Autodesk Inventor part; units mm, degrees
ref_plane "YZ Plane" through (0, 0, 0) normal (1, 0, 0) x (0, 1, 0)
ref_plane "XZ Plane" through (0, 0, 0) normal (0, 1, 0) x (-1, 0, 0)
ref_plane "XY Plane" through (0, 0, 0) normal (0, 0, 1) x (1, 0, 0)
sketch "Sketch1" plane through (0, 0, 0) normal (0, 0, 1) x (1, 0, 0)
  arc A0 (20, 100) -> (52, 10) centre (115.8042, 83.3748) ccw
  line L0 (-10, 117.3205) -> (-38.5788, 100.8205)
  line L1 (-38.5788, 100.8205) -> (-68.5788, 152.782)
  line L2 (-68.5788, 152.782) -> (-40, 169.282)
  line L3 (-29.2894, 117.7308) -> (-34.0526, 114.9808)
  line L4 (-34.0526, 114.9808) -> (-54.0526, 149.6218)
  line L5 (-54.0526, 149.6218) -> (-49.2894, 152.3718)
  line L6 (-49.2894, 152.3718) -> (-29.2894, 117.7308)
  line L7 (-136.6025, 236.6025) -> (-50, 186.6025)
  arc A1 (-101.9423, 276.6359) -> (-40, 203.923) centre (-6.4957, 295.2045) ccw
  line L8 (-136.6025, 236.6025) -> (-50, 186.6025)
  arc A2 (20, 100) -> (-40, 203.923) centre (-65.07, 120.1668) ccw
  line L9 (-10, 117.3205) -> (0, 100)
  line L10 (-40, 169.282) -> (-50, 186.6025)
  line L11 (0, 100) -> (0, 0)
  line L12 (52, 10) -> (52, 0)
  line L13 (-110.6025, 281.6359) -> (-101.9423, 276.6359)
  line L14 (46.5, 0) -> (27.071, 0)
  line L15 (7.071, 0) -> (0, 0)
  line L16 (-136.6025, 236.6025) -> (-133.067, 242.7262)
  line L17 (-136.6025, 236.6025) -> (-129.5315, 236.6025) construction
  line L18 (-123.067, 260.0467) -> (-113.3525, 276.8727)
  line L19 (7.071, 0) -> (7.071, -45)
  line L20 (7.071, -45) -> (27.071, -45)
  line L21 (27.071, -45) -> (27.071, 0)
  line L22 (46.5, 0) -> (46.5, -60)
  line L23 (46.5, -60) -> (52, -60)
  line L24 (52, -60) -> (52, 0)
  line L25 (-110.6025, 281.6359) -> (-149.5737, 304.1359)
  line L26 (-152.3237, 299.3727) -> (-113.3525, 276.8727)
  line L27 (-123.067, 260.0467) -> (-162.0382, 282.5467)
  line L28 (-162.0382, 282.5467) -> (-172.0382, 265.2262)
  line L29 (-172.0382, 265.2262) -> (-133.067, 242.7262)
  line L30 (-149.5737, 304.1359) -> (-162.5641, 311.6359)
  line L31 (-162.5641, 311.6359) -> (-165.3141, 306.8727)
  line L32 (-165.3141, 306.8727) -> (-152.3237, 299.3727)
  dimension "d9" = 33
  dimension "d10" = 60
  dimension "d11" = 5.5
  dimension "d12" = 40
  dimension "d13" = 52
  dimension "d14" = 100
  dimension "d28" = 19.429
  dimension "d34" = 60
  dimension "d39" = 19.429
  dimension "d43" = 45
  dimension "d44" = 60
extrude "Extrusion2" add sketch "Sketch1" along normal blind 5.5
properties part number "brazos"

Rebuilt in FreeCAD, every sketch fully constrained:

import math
import FreeCAD as App
import Part
import Sketcher
from FreeCAD import Vector
Q = App.Units.Quantity


def add_polygon(sketch, points):
    """Adds a closed chain of lines whose ends are joined by coincident constraints."""
    first, n = sketch.GeometryCount, len(points)
    for a, b in zip(points, points[1:] + points[:1]):
        sketch.addGeometry(Part.LineSegment(App.Vector(*a, 0), App.Vector(*b, 0)), False)
    for i in range(n):
        sketch.addConstraint(Sketcher.Constraint("Coincident", first + i, 2, first + (i + 1) % n, 1))

doc = App.newDocument("Part")
body = doc.addObject("PartDesign::Body", "Body")

sketch1 = body.newObject("Sketcher::SketchObject", "Sketch")
sketch1.AttachmentSupport = (doc.getObject("XY_Plane"), [""])
sketch1.MapMode = "FlatFace"
sketch1.addGeometry(Part.ArcOfCircle(Part.Circle(Vector(116, 83, 0), Vector(0, 0, 1), 97), math.radians(170), math.radians(229)), False)
sketch1.addGeometry(Part.ArcOfCircle(Part.Circle(Vector(-65, 120, 0), Vector(0, 0, 1), 87), math.radians(-13), math.radians(73)), False)
sketch1.addGeometry(Part.ArcOfCircle(Part.Circle(Vector(-6, 295, 0), Vector(0, 0, 1), 97), math.radians(-169), math.radians(-110)), False)
sketch1.addGeometry(Part.LineSegment(Vector(-102, 277, 0), Vector(-111, 282, 0)), False)
sketch1.addGeometry(Part.LineSegment(Vector(-111, 282, 0), Vector(-163, 312, 0)), False)
sketch1.addGeometry(Part.LineSegment(Vector(-163, 312, 0), Vector(-165, 307, 0)), False)
sketch1.addGeometry(Part.LineSegment(Vector(-165, 307, 0), Vector(-113, 277, 0)), False)
sketch1.addGeometry(Part.LineSegment(Vector(-113, 277, 0), Vector(-123, 260, 0)), False)
sketch1.addGeometry(Part.LineSegment(Vector(-123, 260, 0), Vector(-162, 283, 0)), False)
sketch1.addGeometry(Part.LineSegment(Vector(-162, 283, 0), Vector(-172, 265, 0)), False)
sketch1.addGeometry(Part.LineSegment(Vector(-172, 265, 0), Vector(-133, 243, 0)), False)
sketch1.addGeometry(Part.LineSegment(Vector(-133, 243, 0), Vector(-137, 237, 0)), False)
sketch1.addGeometry(Part.LineSegment(Vector(-137, 237, 0), Vector(-50, 187, 0)), False)
sketch1.addGeometry(Part.LineSegment(Vector(-50, 187, 0), Vector(-40, 169, 0)), False)
sketch1.addGeometry(Part.LineSegment(Vector(-40, 169, 0), Vector(-69, 153, 0)), False)
sketch1.addGeometry(Part.LineSegment(Vector(-69, 153, 0), Vector(-39, 101, 0)), False)
sketch1.addGeometry(Part.LineSegment(Vector(-39, 101, 0), Vector(-10, 117, 0)), False)
sketch1.addGeometry(Part.LineSegment(Vector(-10, 117, 0), Vector(0, 100, 0)), False)
sketch1.addGeometry(Part.LineSegment(Vector(0, 100, 0), Vector(0, 0, 0)), False)
sketch1.addGeometry(Part.LineSegment(Vector(0, 0, 0), Vector(7, 0, 0)), False)
sketch1.addGeometry(Part.LineSegment(Vector(7, 0, 0), Vector(7, -45, 0)), False)
sketch1.addGeometry(Part.LineSegment(Vector(7, -45, 0), Vector(27, -45, 0)), False)
sketch1.addGeometry(Part.LineSegment(Vector(27, -45, 0), Vector(27, 0, 0)), False)
sketch1.addGeometry(Part.LineSegment(Vector(27, 0, 0), Vector(46, 0, 0)), False)
sketch1.addGeometry(Part.LineSegment(Vector(46, 0, 0), Vector(46, -60, 0)), False)
sketch1.addGeometry(Part.LineSegment(Vector(46, -60, 0), Vector(52, -60, 0)), False)
sketch1.addGeometry(Part.LineSegment(Vector(52, -60, 0), Vector(52, 10, 0)), False)
add_polygon(sketch1, [(-49, 152), (-29, 118), (-34, 115), (-54, 150)])
sketch1.addConstraint(Sketcher.Constraint("Coincident", 0, 1, 1, 1))
sketch1.addConstraint(Sketcher.Constraint("Coincident", 1, 2, 2, 2))
sketch1.addConstraint(Sketcher.Constraint("Coincident", 2, 1, 3, 1))
sketch1.addConstraint(Sketcher.Constraint("Coincident", 3, 2, 4, 1))
sketch1.addConstraint(Sketcher.Constraint("Coincident", 4, 2, 5, 1))
sketch1.addConstraint(Sketcher.Constraint("Coincident", 5, 2, 6, 1))
sketch1.addConstraint(Sketcher.Constraint("Coincident", 6, 2, 7, 1))
sketch1.addConstraint(Sketcher.Constraint("Coincident", 7, 2, 8, 1))
sketch1.addConstraint(Sketcher.Constraint("Coincident", 8, 2, 9, 1))
sketch1.addConstraint(Sketcher.Constraint("Coincident", 9, 2, 10, 1))
sketch1.addConstraint(Sketcher.Constraint("Coincident", 10, 2, 11, 1))
sketch1.addConstraint(Sketcher.Constraint("Coincident", 11, 2, 12, 1))
sketch1.addConstraint(Sketcher.Constraint("Coincident", 12, 2, 13, 1))
sketch1.addConstraint(Sketcher.Constraint("Coincident", 13, 2, 14, 1))
sketch1.addConstraint(Sketcher.Constraint("Coincident", 14, 2, 15, 1))
sketch1.addConstraint(Sketcher.Constraint("Coincident", 15, 2, 16, 1))
sketch1.addConstraint(Sketcher.Constraint("Coincident", 16, 2, 17, 1))
sketch1.addConstraint(Sketcher.Constraint("Coincident", 17, 2, 18, 1))
sketch1.addConstraint(Sketcher.Constraint("Coincident", 18, 2, 19, 1))
sketch1.addConstraint(Sketcher.Constraint("Coincident", 19, 2, 20, 1))
sketch1.addConstraint(Sketcher.Constraint("Coincident", 20, 2, 21, 1))
sketch1.addConstraint(Sketcher.Constraint("Coincident", 21, 2, 22, 1))
sketch1.addConstraint(Sketcher.Constraint("Coincident", 22, 2, 23, 1))
sketch1.addConstraint(Sketcher.Constraint("Coincident", 23, 2, 24, 1))
sketch1.addConstraint(Sketcher.Constraint("Coincident", 24, 2, 25, 1))
sketch1.addConstraint(Sketcher.Constraint("Coincident", 25, 2, 26, 1))
sketch1.addConstraint(Sketcher.Constraint("Coincident", 26, 2, 0, 2))
sketch1.addConstraint(Sketcher.Constraint("Vertical", 18))
sketch1.addConstraint(Sketcher.Constraint("Horizontal", 19))
sketch1.addConstraint(Sketcher.Constraint("Vertical", 20))
sketch1.addConstraint(Sketcher.Constraint("Horizontal", 21))
sketch1.addConstraint(Sketcher.Constraint("Vertical", 22))
sketch1.addConstraint(Sketcher.Constraint("Horizontal", 23))
sketch1.addConstraint(Sketcher.Constraint("Vertical", 24))
sketch1.addConstraint(Sketcher.Constraint("Horizontal", 25))
sketch1.addConstraint(Sketcher.Constraint("Vertical", 26))
sketch1.addConstraint(Sketcher.Constraint("Coincident", 18, 2, -1, 1))
sketch1.addConstraint(Sketcher.Constraint("Equal", 0, 2))
sketch1.addConstraint(Sketcher.Constraint("PointOnObject", 22, 2, -1))
sketch1.addConstraint(Sketcher.Constraint("Parallel", 3, 4))
sketch1.addConstraint(Sketcher.Constraint("Perpendicular", 4, 5))
sketch1.addConstraint(Sketcher.Constraint("Perpendicular", 5, 6))
sketch1.addConstraint(Sketcher.Constraint("Perpendicular", 6, 7))
sketch1.addConstraint(Sketcher.Constraint("Perpendicular", 7, 8))
sketch1.addConstraint(Sketcher.Constraint("Perpendicular", 8, 9))
sketch1.addConstraint(Sketcher.Constraint("Perpendicular", 9, 10))
sketch1.addConstraint(Sketcher.Constraint("Perpendicular", 10, 11))
sketch1.addConstraint(Sketcher.Constraint("Perpendicular", 11, 12))
sketch1.addConstraint(Sketcher.Constraint("Perpendicular", 13, 14))
sketch1.addConstraint(Sketcher.Constraint("Perpendicular", 14, 15))
sketch1.addConstraint(Sketcher.Constraint("Perpendicular", 15, 16))
sketch1.addConstraint(Sketcher.Constraint("Perpendicular", 16, 17))
sketch1.addConstraint(Sketcher.Constraint("Parallel", 17, 27))
sketch1.addConstraint(Sketcher.Constraint("Perpendicular", 27, 28))
sketch1.addConstraint(Sketcher.Constraint("Perpendicular", 28, 29))
sketch1.addConstraint(Sketcher.Constraint("Perpendicular", 29, 30))
sketch1.addConstraint(Sketcher.Constraint("Horizontal", 0, 1, 17, 2))
sketch1.addConstraint(Sketcher.Constraint("Vertical", 1, 2, 13, 2))
sketch1.addConstraint(Sketcher.Constraint("Equal", 4, 6))
sketch1.addConstraint(Sketcher.Constraint("Equal", 8, 10))
sketch1.addConstraint(Sketcher.Constraint("Equal", 9, 13))
sketch1.addConstraint(Sketcher.Constraint("Equal", 6, 15))
sketch1.addConstraint(Sketcher.Constraint("Equal", 14, 16))
sketch1.addConstraint(Sketcher.Constraint("Equal", 13, 17))
sketch1.addConstraint(Sketcher.Constraint("Equal", 5, 28))
sketch1.addConstraint(Sketcher.Constraint("DistanceY", 18, 2, 18, 1, 100.0))
sketch1.addConstraint(Sketcher.Constraint("DistanceY", 20, 2, 20, 1, 45.0))
sketch1.addConstraint(Sketcher.Constraint("DistanceY", 24, 2, 24, 1, 60.0))
sketch1.addConstraint(Sketcher.Constraint("Angle", 13, Q("-60 deg")))
sketch1.addConstraint(Sketcher.Constraint("Distance", 4, 60.0))
sketch1.addConstraint(Sketcher.Constraint("Distance", 8, 45.0))
sketch1.addConstraint(Sketcher.Constraint("Distance", 12, 100.0))
sketch1.addConstraint(Sketcher.Constraint("Distance", 14, 33.0))
sketch1.addConstraint(Sketcher.Constraint("Distance", 27, 40.0))
sketch1.addConstraint(Sketcher.Constraint("DistanceX", 25, 1, 25, 2, 5.5))
sketch1.addConstraint(Sketcher.Constraint("DistanceX", 13, 2, -1, 1, 40.0))
sketch1.addConstraint(Sketcher.Constraint("DistanceX", -1, 1, 25, 2, 52.0))
sketch1.addConstraint(Sketcher.Constraint("DistanceX", 1, 2, 0, 1, 60.0))
sketch1.addConstraint(Sketcher.Constraint("Distance", 5, 5.5))
sketch1.addConstraint(Sketcher.Constraint("DistanceX", 21, 1, 21, 2, 20.0))
sketch1.addConstraint(Sketcher.Constraint("DistanceX", 23, 1, 23, 2, 19.429))
sketch1.addConstraint(Sketcher.Constraint("DistanceY", 26, 1, 26, 2, 70.0))
sketch1.addConstraint(Sketcher.Constraint("Angle", 3, Q("149.9998 deg")))
sketch1.addConstraint(Sketcher.Constraint("Distance", 3, 10.0))
sketch1.addConstraint(Sketcher.Constraint("Distance", 7, 19.429))
sketch1.addConstraint(Sketcher.Constraint("Radius", 0, 97.236))
sketch1.addConstraint(Sketcher.Constraint("DistanceX", 11, 2, 3, 2, 26.0))
sketch1.addConstraint(Sketcher.Constraint("Radius", 1, 87.4277))
sketch1.addConstraint(Sketcher.Constraint("DistanceX", 2, 3, 0, 3, 122.3))
sketch1.addConstraint(Sketcher.Constraint("DistanceY", 27, 2, 1, 3, 2.436))
sketch1.addConstraint(Sketcher.Constraint("DistanceX", 27, 2, -1, 1, 29.2894))
pad1 = body.newObject("PartDesign::Pad", "Pad")
pad1.Profile = sketch1
pad1.Length = 5.5

doc.recompute()
